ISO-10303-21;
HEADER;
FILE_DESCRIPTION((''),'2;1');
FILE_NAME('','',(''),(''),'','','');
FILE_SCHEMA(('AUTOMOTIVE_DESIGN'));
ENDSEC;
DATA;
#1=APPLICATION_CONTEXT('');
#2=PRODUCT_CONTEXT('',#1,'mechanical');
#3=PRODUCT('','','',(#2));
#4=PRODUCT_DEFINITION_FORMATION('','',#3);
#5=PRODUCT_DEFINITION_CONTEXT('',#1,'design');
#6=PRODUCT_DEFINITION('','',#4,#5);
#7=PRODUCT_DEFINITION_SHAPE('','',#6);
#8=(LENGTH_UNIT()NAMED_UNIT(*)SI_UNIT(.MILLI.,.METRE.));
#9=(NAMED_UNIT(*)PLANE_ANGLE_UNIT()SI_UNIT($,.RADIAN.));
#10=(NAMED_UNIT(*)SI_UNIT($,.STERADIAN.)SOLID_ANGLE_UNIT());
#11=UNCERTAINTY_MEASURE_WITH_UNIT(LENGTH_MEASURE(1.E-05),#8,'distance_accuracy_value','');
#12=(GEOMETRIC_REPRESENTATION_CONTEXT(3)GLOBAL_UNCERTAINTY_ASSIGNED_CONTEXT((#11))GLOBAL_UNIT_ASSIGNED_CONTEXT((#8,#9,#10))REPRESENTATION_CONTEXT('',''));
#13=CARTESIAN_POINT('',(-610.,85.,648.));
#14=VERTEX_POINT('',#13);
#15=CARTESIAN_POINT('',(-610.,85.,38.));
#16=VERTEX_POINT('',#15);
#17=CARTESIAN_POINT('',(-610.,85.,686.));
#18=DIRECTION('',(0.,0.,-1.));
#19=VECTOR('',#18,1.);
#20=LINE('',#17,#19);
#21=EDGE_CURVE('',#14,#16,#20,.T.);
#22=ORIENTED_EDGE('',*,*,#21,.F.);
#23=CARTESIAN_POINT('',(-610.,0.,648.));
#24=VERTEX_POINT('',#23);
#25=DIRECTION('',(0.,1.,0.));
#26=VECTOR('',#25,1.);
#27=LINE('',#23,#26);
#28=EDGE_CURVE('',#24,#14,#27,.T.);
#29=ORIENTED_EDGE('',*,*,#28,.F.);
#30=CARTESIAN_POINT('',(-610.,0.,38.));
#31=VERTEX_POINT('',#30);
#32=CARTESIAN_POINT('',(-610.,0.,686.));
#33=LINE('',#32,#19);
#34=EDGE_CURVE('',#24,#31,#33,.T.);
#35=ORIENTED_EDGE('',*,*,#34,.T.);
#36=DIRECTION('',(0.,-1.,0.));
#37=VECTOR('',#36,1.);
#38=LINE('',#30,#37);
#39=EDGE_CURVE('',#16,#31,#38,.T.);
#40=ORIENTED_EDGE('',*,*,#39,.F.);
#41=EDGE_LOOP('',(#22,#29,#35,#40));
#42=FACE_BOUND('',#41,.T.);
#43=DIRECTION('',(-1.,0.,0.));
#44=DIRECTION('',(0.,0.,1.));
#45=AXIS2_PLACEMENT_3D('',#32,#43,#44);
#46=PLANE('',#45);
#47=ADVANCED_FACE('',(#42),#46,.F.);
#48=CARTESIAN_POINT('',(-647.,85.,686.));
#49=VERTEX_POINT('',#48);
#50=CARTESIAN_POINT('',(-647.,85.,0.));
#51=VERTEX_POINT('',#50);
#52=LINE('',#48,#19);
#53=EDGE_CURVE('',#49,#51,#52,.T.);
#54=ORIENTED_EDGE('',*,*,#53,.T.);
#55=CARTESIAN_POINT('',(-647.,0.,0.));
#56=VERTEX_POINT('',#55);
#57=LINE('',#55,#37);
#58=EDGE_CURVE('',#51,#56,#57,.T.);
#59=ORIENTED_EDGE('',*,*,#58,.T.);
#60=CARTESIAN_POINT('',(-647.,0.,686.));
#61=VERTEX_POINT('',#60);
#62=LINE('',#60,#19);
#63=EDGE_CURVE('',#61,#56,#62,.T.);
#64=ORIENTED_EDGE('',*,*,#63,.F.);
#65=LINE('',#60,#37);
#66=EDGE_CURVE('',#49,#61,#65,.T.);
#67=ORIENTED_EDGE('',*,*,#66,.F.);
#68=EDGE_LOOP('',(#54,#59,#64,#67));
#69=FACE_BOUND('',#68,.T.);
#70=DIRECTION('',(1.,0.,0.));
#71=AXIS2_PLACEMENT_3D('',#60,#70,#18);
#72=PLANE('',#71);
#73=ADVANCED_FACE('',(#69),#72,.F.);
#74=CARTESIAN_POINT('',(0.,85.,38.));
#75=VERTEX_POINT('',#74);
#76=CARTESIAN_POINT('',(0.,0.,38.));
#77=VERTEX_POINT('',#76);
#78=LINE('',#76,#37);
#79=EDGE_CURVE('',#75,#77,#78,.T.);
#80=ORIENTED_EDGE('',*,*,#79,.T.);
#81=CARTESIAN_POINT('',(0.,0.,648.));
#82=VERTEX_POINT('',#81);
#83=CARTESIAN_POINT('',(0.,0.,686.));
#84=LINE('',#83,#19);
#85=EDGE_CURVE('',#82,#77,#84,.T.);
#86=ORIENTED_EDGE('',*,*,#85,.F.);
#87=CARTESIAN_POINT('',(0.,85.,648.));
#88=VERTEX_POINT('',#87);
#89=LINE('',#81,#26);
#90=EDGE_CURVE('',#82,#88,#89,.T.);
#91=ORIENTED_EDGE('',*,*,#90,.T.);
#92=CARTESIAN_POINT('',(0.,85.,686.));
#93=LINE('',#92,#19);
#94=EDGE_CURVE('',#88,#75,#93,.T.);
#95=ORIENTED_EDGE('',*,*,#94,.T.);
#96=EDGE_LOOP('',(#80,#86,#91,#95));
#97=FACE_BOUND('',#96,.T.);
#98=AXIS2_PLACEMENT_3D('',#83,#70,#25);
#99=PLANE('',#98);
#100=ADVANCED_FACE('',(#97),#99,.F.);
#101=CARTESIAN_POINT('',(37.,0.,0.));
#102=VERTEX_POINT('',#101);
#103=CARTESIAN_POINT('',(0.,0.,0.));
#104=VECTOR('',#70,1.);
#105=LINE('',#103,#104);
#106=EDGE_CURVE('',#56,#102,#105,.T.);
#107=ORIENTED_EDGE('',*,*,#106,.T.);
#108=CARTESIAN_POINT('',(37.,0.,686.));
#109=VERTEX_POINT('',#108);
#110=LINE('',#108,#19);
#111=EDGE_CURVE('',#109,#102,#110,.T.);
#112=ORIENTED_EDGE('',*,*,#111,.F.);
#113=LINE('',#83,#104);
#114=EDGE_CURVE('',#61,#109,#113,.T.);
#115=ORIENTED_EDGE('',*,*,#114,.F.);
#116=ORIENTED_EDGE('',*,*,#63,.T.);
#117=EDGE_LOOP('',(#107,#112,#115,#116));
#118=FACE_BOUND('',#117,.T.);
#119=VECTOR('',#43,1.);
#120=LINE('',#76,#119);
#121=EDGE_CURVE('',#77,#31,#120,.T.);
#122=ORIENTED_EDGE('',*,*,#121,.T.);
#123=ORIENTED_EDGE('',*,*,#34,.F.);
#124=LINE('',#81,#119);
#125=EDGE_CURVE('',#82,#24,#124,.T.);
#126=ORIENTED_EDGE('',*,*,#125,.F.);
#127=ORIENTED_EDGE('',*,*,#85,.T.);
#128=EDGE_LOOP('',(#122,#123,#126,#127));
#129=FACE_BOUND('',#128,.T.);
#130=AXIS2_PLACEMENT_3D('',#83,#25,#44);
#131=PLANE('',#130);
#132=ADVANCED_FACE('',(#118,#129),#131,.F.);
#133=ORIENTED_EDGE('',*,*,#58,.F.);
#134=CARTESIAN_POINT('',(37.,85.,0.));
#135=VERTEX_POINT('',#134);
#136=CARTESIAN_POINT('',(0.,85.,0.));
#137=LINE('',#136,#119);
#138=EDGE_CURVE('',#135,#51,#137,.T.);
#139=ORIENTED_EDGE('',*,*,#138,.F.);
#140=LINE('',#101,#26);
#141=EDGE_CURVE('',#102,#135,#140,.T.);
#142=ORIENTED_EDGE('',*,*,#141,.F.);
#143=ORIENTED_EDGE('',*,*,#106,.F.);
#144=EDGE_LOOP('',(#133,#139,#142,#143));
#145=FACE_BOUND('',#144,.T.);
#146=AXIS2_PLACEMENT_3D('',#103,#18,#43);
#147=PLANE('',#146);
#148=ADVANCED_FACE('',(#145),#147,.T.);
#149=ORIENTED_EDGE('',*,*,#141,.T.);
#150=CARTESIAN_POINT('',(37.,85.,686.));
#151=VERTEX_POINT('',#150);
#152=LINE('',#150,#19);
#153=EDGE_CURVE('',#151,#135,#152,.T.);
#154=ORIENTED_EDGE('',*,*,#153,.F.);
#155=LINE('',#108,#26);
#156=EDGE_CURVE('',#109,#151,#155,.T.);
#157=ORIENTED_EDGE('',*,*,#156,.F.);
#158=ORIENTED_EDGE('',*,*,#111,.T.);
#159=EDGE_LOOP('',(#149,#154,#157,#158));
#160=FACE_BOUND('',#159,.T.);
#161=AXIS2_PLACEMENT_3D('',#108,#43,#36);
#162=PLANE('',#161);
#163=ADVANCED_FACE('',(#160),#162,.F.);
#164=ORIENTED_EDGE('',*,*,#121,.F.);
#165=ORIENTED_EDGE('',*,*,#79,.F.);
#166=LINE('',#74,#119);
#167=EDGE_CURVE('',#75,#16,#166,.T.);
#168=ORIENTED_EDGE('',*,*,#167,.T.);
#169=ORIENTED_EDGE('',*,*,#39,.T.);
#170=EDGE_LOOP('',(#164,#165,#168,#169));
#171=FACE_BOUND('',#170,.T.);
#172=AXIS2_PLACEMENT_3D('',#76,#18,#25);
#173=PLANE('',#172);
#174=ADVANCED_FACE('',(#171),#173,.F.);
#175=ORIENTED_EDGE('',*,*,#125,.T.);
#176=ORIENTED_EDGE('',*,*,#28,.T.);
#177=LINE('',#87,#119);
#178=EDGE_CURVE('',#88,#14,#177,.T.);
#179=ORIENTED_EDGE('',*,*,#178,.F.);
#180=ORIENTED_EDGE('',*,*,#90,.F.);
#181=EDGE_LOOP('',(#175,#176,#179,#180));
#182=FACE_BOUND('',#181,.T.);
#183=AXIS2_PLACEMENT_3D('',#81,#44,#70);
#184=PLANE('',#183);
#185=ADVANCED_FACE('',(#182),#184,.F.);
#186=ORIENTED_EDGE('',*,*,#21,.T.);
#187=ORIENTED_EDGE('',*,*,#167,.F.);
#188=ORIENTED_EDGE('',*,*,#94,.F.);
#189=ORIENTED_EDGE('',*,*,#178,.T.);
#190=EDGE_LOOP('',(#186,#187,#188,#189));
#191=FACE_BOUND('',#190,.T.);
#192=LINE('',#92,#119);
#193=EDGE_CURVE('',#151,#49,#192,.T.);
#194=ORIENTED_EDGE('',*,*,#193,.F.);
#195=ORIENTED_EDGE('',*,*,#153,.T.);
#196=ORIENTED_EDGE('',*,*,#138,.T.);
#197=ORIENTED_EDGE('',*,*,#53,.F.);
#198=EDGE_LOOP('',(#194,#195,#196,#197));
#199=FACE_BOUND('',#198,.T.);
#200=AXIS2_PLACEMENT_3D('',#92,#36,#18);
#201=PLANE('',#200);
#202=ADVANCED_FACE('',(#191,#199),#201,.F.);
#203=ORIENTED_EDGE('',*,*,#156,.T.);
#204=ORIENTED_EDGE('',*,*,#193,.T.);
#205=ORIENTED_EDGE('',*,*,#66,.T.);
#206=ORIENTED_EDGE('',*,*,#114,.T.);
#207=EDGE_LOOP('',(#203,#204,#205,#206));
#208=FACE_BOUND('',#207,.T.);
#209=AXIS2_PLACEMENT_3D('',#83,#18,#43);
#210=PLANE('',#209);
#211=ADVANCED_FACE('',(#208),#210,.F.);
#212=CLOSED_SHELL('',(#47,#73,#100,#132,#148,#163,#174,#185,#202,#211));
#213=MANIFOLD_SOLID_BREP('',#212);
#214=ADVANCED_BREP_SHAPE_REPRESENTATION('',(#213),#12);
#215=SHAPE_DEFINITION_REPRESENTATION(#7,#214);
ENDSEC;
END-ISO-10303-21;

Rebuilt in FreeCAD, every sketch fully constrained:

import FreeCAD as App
import Part
import Sketcher
from FreeCAD import Vector
Q = App.Units.Quantity


def add_polygon(sketch, points):
    """Adds a closed chain of lines whose ends are joined by coincident constraints."""
    first, n = sketch.GeometryCount, len(points)
    for a, b in zip(points, points[1:] + points[:1]):
        sketch.addGeometry(Part.LineSegment(App.Vector(*a, 0), App.Vector(*b, 0)), False)
    for i in range(n):
        sketch.addConstraint(Sketcher.Constraint("Coincident", first + i, 2, first + (i + 1) % n, 1))

doc = App.newDocument("Part")
params = doc.addObject("Spreadsheet::Sheet", "Params")
for row, (alias, value) in enumerate([
    ("sketch1_width", "37 mm"),
    ("sketch1_height", "85 mm"),
    ("pad1_length", "686 mm"),
    ("sketch2_width", "37 mm"),
    ("sketch2_height", "85 mm"),
    ("pad2_length", "686 mm"),
    ("sketch3_width", "85 mm"),
    ("sketch3_height", "38 mm"),
    ("pad3_length", "610 mm"),
], start=1):
    params.set(f"A{row}", alias)
    params.set(f"B{row}", "=" + value)
    params.setAlias(f"B{row}", alias)

body = doc.addObject("PartDesign::Body", "Body")

# Sketch on XY plane
sketch1 = doc.addObject("Sketcher::SketchObject", "Sketch")
body.addObject(sketch1)
sketch1.AttachmentSupport = (doc.XY_Plane, [""])
sketch1.MapMode = "FlatFace"
add_polygon(sketch1, [(0, 85), (0, 0), (37, 0), (37, 85)])  # lines 0-3
sketch1.addConstraint([
    Sketcher.Constraint("Vertical", 0),
    Sketcher.Constraint("Horizontal", 1),
    Sketcher.Constraint("Vertical", 2),
    Sketcher.Constraint("Horizontal", 3),
    Sketcher.Constraint("Coincident", 0, 2, -1, 1),
    Sketcher.Constraint("DistanceX", 1, 1, 1, 2, Q("37 mm")),
    Sketcher.Constraint("DistanceY", 0, 2, 0, 1, Q("85 mm")),
])
sketch1.setExpression("Constraints[9]", "Params.sketch1_width")
sketch1.setExpression("Constraints[10]", "Params.sketch1_height")
pad1 = doc.addObject("PartDesign::Pad", "Pad")
body.addObject(pad1)
pad1.Profile = sketch1
pad1.setExpression("Length", "Params.pad1_length")
body2 = doc.addObject("PartDesign::Body", "Body001")

# Sketch on XY plane
sketch2 = doc.addObject("Sketcher::SketchObject", "Sketch001")
body2.addObject(sketch2)
sketch2.AttachmentSupport = (doc.getObject("XY_Plane001"), [""])
sketch2.MapMode = "FlatFace"
add_polygon(sketch2, [(-647, 85), (-647, 0), (-610, 0), (-610, 85)])  # lines 0-3
sketch2.addConstraint([
    Sketcher.Constraint("Vertical", 0),
    Sketcher.Constraint("Horizontal", 1),
    Sketcher.Constraint("Vertical", 2),
    Sketcher.Constraint("Horizontal", 3),
    Sketcher.Constraint("PointOnObject", 0, 2, -1),
    Sketcher.Constraint("DistanceX", 1, 1, 1, 2, Q("37 mm")),
    Sketcher.Constraint("DistanceY", 0, 2, 0, 1, Q("85 mm")),
    Sketcher.Constraint("DistanceX", 0, 2, -1, 1, Q("647 mm")),
])
sketch2.setExpression("Constraints[9]", "Params.sketch2_width")
sketch2.setExpression("Constraints[10]", "Params.sketch2_height")
pad2 = doc.addObject("PartDesign::Pad", "Pad001")
body2.addObject(pad2)
pad2.Profile = sketch2
pad2.setExpression("Length", "Params.pad2_length")
body.AllowCompound = True
doc.recompute()

boolean = doc.addObject("PartDesign::Boolean", "Boolean")
body.addObject(boolean)
boolean.Type = "Fuse"
boolean.addObjects([body2])

# Sketch on YZ plane
sketch3 = doc.addObject("Sketcher::SketchObject", "Sketch002")
body.addObject(sketch3)
sketch3.AttachmentSupport = (doc.YZ_Plane, [""])
sketch3.MapMode = "FlatFace"
sketch3.AttachmentOffset = App.Placement(Vector(0, 0, -610), App.Rotation())
add_polygon(sketch3, [(85, 686), (0, 686), (0, 648), (85, 648)])  # lines 0-3
add_polygon(sketch3, [(85, 38), (0, 38), (0, 0), (85, 0)])  # lines 4-7
sketch3.addConstraint([
    Sketcher.Constraint("Horizontal", 0),
    Sketcher.Constraint("Vertical", 1),
    Sketcher.Constraint("Horizontal", 2),
    Sketcher.Constraint("Vertical", 3),
    Sketcher.Constraint("Horizontal", 4),
    Sketcher.Constraint("Vertical", 5),
    Sketcher.Constraint("Horizontal", 6),
    Sketcher.Constraint("Vertical", 7),
    Sketcher.Constraint("Coincident", 5, 2, -1, 1),
    Sketcher.Constraint("PointOnObject", 0, 2, -2),
    Sketcher.Constraint("Vertical", 3, 2, 6, 2),
    Sketcher.Constraint("Equal", 3, 5),
    Sketcher.Constraint("DistanceX", 0, 2, 0, 1, Q("85 mm")),
    Sketcher.Constraint("DistanceY", 1, 2, 1, 1, Q("38 mm")),
    Sketcher.Constraint("DistanceY", -1, 1, 0, 2, Q("686 mm")),
])
sketch3.setExpression("Constraints[20]", "Params.sketch3_width")
sketch3.setExpression("Constraints[21]", "Params.sketch3_height")
pad3 = doc.addObject("PartDesign::Pad", "Pad002")
body.addObject(pad3)
pad3.Profile = sketch3
pad3.setExpression("Length", "Params.pad3_length")

doc.recompute()
